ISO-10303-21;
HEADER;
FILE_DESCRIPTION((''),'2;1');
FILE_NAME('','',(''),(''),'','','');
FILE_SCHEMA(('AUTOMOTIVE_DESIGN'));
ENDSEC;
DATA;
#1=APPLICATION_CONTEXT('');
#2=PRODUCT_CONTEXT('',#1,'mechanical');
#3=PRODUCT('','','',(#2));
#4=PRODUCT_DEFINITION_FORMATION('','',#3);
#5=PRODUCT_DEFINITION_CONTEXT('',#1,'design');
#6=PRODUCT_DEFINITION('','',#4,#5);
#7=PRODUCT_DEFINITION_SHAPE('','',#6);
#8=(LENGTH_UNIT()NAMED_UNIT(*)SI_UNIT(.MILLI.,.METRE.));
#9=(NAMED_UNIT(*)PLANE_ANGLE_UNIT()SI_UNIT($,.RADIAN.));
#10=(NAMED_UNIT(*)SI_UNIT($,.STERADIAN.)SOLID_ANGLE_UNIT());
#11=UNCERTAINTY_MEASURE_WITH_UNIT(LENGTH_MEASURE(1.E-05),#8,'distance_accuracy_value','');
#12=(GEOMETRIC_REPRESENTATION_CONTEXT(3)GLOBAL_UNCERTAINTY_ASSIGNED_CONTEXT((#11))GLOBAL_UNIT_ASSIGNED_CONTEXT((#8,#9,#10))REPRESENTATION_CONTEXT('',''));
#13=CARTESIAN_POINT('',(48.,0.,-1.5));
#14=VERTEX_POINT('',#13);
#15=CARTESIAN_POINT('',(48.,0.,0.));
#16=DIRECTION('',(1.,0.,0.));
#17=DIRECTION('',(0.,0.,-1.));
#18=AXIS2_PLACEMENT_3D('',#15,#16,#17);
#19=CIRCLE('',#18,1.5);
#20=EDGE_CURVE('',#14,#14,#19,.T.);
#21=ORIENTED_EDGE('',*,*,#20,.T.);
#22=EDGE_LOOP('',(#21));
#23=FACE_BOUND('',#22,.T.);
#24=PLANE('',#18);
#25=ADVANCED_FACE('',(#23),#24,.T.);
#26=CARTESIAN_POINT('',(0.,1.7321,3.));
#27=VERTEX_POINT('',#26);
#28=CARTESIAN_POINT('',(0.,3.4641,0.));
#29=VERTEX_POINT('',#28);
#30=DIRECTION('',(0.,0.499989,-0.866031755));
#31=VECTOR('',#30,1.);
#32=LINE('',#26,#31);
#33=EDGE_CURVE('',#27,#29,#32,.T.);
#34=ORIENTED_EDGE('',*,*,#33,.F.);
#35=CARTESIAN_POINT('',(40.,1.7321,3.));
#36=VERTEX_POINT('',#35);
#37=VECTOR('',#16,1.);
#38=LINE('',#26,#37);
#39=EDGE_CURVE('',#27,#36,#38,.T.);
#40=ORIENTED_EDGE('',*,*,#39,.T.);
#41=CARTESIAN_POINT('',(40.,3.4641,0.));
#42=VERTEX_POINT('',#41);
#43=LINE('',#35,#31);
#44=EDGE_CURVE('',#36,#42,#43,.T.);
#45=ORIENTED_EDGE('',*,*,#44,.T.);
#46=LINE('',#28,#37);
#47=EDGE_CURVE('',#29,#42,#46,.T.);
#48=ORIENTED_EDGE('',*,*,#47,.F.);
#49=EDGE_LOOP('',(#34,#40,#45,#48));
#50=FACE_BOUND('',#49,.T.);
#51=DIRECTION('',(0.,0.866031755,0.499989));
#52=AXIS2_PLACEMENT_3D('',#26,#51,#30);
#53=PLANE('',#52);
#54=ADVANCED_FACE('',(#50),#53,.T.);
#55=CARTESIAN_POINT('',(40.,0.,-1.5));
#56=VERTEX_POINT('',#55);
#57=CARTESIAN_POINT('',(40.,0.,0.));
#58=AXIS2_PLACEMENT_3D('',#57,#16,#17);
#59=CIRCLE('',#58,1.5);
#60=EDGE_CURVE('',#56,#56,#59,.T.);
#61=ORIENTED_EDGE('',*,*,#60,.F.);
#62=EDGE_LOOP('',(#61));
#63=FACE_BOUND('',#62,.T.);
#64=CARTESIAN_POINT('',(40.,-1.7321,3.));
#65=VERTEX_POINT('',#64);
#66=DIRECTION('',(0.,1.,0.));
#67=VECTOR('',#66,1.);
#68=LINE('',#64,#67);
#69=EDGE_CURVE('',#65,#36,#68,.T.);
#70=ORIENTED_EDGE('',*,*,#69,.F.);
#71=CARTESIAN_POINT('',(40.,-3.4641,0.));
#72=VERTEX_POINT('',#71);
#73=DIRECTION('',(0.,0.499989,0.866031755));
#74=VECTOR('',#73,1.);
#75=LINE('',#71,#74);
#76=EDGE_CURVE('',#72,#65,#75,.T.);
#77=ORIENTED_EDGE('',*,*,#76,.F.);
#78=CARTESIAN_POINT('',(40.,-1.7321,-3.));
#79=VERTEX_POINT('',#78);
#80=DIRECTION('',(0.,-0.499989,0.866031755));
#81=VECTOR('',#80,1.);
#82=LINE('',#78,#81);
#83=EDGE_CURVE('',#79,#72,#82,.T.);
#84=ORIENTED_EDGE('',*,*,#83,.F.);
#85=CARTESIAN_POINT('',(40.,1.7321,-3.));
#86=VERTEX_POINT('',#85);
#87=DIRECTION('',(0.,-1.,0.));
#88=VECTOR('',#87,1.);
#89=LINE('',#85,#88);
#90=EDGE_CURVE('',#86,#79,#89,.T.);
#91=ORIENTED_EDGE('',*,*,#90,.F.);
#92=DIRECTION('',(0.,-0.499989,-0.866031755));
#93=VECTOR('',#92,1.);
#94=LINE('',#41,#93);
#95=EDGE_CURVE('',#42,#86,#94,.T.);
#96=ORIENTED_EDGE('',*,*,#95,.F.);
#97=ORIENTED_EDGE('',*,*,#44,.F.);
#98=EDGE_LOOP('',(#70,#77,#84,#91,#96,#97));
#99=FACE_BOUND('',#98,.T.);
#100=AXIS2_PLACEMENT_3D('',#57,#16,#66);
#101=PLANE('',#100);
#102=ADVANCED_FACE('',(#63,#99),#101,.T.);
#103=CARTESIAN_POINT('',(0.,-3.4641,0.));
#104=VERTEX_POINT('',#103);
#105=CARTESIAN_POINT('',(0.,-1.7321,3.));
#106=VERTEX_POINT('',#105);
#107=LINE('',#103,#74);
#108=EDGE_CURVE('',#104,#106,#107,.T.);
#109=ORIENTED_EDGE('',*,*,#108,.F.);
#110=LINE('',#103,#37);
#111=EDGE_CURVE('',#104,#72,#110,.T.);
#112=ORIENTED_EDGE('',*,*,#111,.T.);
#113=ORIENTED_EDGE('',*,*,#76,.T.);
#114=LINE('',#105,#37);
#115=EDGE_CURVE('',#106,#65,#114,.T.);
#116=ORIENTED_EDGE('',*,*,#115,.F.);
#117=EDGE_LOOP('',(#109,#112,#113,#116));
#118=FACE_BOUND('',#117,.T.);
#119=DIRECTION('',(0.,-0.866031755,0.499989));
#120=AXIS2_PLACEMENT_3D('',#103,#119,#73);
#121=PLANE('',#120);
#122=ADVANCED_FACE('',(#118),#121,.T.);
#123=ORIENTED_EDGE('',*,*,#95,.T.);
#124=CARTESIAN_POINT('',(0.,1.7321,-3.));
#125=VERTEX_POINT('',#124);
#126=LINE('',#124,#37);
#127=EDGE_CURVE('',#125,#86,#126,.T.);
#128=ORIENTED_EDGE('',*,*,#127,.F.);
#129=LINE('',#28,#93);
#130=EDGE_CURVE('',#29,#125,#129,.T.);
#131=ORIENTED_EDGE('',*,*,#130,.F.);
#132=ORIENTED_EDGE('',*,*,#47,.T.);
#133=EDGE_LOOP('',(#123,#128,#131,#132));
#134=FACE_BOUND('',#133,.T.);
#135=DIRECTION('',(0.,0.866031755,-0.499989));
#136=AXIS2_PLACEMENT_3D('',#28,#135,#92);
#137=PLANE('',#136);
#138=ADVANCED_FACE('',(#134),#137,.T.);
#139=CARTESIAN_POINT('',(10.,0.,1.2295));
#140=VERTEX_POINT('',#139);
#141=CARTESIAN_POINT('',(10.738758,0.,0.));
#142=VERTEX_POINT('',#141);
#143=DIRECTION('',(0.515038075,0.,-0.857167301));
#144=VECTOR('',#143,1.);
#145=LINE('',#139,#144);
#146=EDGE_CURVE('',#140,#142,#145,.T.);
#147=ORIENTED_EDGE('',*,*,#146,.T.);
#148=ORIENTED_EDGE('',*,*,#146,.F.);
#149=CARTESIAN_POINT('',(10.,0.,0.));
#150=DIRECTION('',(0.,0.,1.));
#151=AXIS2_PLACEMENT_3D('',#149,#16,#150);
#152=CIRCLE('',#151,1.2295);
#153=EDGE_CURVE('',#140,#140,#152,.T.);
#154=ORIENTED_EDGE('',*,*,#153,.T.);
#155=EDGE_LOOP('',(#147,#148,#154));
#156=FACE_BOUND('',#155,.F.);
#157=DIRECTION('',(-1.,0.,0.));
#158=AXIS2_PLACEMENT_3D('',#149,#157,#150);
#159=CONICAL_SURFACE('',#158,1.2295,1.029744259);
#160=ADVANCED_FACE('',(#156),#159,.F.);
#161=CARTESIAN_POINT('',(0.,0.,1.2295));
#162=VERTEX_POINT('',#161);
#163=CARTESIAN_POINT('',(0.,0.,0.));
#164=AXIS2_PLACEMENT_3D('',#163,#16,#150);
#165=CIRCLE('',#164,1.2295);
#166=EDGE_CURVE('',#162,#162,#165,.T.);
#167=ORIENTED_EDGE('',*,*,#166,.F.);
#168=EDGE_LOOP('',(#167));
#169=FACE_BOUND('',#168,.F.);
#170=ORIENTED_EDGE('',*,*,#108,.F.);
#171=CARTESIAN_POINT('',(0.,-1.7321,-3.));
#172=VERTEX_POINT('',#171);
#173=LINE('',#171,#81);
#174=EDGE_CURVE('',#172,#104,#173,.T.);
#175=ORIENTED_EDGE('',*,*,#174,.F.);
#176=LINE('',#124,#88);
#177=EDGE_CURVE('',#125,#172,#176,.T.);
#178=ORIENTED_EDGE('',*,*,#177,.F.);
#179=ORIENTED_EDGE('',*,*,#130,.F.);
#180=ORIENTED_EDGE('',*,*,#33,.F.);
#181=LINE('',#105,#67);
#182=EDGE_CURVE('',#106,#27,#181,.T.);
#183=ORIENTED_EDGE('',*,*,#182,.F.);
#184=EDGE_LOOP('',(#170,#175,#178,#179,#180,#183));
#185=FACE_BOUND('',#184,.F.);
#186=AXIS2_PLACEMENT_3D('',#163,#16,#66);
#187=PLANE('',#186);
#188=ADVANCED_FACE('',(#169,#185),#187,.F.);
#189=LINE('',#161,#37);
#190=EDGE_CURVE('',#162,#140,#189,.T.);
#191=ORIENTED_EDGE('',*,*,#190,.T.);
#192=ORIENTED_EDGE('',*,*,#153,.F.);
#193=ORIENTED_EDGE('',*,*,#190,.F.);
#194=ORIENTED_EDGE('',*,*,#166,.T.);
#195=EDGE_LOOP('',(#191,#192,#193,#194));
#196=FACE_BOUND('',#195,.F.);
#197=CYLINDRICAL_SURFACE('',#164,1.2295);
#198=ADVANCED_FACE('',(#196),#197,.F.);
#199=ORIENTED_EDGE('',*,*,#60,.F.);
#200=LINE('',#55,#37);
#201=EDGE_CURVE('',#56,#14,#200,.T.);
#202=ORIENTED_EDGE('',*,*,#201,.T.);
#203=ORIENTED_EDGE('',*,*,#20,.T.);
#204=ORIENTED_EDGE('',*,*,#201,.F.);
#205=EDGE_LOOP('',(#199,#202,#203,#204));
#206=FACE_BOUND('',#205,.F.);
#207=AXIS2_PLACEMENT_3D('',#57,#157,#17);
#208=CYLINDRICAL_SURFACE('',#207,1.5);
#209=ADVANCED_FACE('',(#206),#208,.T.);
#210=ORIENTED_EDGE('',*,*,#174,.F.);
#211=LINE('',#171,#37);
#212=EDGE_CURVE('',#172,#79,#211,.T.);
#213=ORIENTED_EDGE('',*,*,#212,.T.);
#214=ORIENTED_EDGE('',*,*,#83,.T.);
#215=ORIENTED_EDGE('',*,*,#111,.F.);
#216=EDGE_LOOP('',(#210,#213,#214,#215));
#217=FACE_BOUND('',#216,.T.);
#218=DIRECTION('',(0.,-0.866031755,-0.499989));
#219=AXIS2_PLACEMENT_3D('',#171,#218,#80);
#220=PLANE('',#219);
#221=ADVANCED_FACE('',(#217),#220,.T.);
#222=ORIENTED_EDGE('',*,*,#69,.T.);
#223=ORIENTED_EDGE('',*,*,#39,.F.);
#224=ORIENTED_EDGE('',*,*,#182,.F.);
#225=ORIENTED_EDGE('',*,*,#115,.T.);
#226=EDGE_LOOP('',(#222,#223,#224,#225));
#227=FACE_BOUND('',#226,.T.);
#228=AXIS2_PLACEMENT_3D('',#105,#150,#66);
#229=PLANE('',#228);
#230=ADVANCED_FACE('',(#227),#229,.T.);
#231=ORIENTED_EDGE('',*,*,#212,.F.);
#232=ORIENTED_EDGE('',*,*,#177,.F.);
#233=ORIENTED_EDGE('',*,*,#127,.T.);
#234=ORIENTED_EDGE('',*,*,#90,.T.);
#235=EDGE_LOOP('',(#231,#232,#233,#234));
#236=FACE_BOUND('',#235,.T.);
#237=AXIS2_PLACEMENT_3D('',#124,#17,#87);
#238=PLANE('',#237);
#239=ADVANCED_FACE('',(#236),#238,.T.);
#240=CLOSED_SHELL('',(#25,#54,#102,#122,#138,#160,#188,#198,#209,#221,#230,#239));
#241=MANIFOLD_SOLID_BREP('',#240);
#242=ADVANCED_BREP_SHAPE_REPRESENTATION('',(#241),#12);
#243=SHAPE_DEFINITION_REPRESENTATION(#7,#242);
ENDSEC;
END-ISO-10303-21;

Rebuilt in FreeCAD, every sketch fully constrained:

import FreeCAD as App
import Part
import Sketcher
Q = App.Units.Quantity


def add_polygon(sketch, points):
    """Adds a closed chain of lines whose ends are joined by coincident constraints."""
    first, n = sketch.GeometryCount, len(points)
    for a, b in zip(points, points[1:] + points[:1]):
        sketch.addGeometry(Part.LineSegment(App.Vector(*a, 0), App.Vector(*b, 0)), False)
    for i in range(n):
        sketch.addConstraint(Sketcher.Constraint("Coincident", first + i, 2, first + (i + 1) % n, 1))

doc = App.newDocument("Part")
body = doc.addObject("PartDesign::Body", "Body")

# Sketch on YZ plane
sketch1 = body.newObject("Sketcher::SketchObject", "Sketch")
sketch1.AttachmentSupport = (doc.getObject("YZ_Plane"), [""])
sketch1.MapMode = "FlatFace"
add_polygon(sketch1, [(-1.7, -3), (1.7, -3), (3.5, 0), (1.7, 3), (-1.7, 3), (-3.5, 0)])  # lines 0-5
sketch1.addConstraint(Sketcher.Constraint("Horizontal", 0))
sketch1.addConstraint(Sketcher.Constraint("Horizontal", 3))
sketch1.addConstraint(Sketcher.Constraint("Symmetric", 0, 2, 3, 2, -1, 1))
sketch1.addConstraint(Sketcher.Constraint("Symmetric", 1, 2, 4, 2, -1, 1))
sketch1.addConstraint(Sketcher.Constraint("PointOnObject", 1, 2, -1))
sketch1.addConstraint(Sketcher.Constraint("Parallel", 2, 5))
sketch1.addConstraint(Sketcher.Constraint("Vertical", 0, 2, 2, 2))
sketch1.addConstraint(Sketcher.Constraint("DistanceY", 0, 2, 2, 2, 6.0))
sketch1.addConstraint(Sketcher.Constraint("Angle", 1, Q("60.0007 deg")))
sketch1.addConstraint(Sketcher.Constraint("DistanceX", 0, 1, 0, 2, 3.4642))
pad1 = body.newObject("PartDesign::Pad", "Pad")
pad1.Profile = sketch1
pad1.Length = 40

# Sketch on YZ plane
sketch2 = body.newObject("Sketcher::SketchObject", "Sketch001")
sketch2.AttachmentSupport = (doc.getObject("YZ_Plane"), [""])
sketch2.MapMode = "FlatFace"
sketch2.AttachmentOffset = App.Placement(App.Vector(0, 0, 40), App.Rotation())
sketch2.addGeometry(Part.Circle(App.Vector(0, 0, 0), App.Vector(0, 0, 1), 1.5), False)
sketch2.addConstraint(Sketcher.Constraint("Coincident", 0, 3, -1, 1))
sketch2.addConstraint(Sketcher.Constraint("Diameter", 0, 3.0))
pad2 = body.newObject("PartDesign::Pad", "Pad001")
pad2.Profile = sketch2
pad2.Length = 8

# Sketch on YZ plane
sketch3 = body.newObject("Sketcher::SketchObject", "Sketch002")
sketch3.AttachmentSupport = (doc.getObject("YZ_Plane"), [""])
sketch3.MapMode = "FlatFace"
sketch3.addGeometry(Part.Circle(App.Vector(0, 0, 0), App.Vector(0, 0, 1), 1.2), False)
sketch3.addConstraint(Sketcher.Constraint("Coincident", 0, 3, -1, 1))
sketch3.addConstraint(Sketcher.Constraint("Diameter", 0, 2.459))
doc.recompute()
hole = body.newObject("PartDesign::Hole", "Hole")
hole.Profile = sketch3
hole.ThreadType = "None"
hole.Diameter = 2.459
hole.DepthType = "Dimension"
hole.Depth = 10
hole.DrillPoint = "Angled"
hole.DrillPointAngle = 118
hole.Reversed = True

doc.recompute()
